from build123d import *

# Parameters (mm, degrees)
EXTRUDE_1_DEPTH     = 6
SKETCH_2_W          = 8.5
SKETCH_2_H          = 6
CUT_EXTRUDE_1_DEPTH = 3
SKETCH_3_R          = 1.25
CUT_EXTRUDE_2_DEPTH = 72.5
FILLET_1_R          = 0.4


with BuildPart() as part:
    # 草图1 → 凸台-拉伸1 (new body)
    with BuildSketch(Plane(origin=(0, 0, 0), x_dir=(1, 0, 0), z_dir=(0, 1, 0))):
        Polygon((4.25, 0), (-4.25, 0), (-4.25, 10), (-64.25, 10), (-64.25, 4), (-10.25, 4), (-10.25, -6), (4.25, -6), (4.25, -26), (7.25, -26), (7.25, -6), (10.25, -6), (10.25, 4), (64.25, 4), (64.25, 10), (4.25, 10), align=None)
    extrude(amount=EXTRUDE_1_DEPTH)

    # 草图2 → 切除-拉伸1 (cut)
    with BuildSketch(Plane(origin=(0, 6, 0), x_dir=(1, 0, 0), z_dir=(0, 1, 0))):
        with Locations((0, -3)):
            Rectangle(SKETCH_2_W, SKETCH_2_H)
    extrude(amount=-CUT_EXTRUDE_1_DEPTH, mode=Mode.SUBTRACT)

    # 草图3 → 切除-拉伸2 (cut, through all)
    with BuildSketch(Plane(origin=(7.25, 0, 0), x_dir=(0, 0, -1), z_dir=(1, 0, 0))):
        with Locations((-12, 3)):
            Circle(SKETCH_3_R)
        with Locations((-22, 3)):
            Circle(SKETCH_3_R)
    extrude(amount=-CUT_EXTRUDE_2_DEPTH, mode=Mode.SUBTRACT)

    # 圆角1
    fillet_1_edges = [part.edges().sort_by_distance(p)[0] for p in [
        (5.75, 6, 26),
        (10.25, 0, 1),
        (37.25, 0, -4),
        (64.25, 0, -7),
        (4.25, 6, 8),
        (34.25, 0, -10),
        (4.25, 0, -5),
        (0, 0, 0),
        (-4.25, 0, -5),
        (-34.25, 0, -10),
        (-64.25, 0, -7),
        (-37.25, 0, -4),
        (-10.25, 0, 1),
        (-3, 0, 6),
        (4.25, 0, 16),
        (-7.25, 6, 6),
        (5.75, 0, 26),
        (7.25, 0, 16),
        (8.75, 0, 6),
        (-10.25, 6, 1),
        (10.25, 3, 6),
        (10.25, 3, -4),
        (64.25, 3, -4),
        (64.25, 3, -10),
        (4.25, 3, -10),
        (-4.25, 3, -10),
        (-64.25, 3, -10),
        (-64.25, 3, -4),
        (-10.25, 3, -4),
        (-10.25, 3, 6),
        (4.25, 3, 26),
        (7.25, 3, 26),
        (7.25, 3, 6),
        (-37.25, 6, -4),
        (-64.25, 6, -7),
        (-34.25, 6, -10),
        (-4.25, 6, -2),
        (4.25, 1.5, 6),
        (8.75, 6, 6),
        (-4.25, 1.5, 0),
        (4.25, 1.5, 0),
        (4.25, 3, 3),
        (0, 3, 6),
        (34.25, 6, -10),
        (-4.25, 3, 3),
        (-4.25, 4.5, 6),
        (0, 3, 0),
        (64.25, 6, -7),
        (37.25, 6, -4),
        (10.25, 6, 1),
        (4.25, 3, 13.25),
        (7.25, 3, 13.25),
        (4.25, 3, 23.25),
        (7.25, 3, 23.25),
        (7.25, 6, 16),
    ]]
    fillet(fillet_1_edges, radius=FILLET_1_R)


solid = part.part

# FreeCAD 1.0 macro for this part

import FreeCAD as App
import Part
import Sketcher


def add_polygon(sketch, points):
    """Adds a closed chain of lines whose ends are joined by coincident constraints."""
    first, n = sketch.GeometryCount, len(points)
    for a, b in zip(points, points[1:] + points[:1]):
        sketch.addGeometry(Part.LineSegment(App.Vector(*a, 0), App.Vector(*b, 0)), False)
    for i in range(n):
        sketch.addConstraint(Sketcher.Constraint("Coincident", first + i, 2, first + (i + 1) % n, 1))

doc = App.newDocument("Part")
body = doc.addObject("PartDesign::Body", "Body")

sketch1 = body.newObject("Sketcher::SketchObject", "Sketch")
sketch1.AttachmentSupport = (doc.getObject("XZ_Plane"), [""])
sketch1.MapMode = "FlatFace"
add_polygon(sketch1, [(4.25, 0), (-4.25, 0), (-4.25, -10), (-64.25, -10), (-64.25, -4), (-10.25, -4), (-10.25, 6), (4.25, 6), (4.25, 26), (7.25, 26), (7.25, 6), (10.25, 6), (10.25, -4), (64.25, -4), (64.25, -10), (4.25, -10)])
sketch1.addConstraint([
    Sketcher.Constraint("Horizontal", 0),
    Sketcher.Constraint("Vertical", 1),
    Sketcher.Constraint("Horizontal", 2),
    Sketcher.Constraint("Vertical", 3),
    Sketcher.Constraint("Horizontal", 4),
    Sketcher.Constraint("Vertical", 5),
    Sketcher.Constraint("Horizontal", 6),
    Sketcher.Constraint("Vertical", 7),
    Sketcher.Constraint("Horizontal", 8),
    Sketcher.Constraint("Vertical", 9),
    Sketcher.Constraint("Horizontal", 10),
    Sketcher.Constraint("Vertical", 11),
    Sketcher.Constraint("Horizontal", 12),
    Sketcher.Constraint("Vertical", 13),
    Sketcher.Constraint("Horizontal", 14),
    Sketcher.Constraint("Vertical", 15),
    Sketcher.Constraint("Symmetric", 0, 2, 15, 2, -1, 1),
    Sketcher.Constraint("Symmetric", 5, 2, 10, 2, -2),
    Sketcher.Constraint("Symmetric", 3, 2, 12, 2, -2),
    Sketcher.Constraint("Horizontal", 2, 2, 13, 2),
    Sketcher.Constraint("Vertical", 7, 2, 14, 2),
    Sketcher.Constraint("Equal", 8, 10),
    Sketcher.Constraint("Equal", 1, 5),
    Sketcher.Constraint("DistanceX", 2, 2, 2, 1, 60.0),
    Sketcher.Constraint("DistanceX", 4, 1, 4, 2, 54.0),
    Sketcher.Constraint("DistanceY", 1, 2, 1, 1, 10.0),
    Sketcher.Constraint("DistanceY", 3, 1, 3, 2, 6.0),
    Sketcher.Constraint("DistanceY", 7, 1, 7, 2, 20.0),
    Sketcher.Constraint("DistanceX", 0, 2, 0, 1, 8.5),
])
pad1 = body.newObject("PartDesign::Pad", "Pad")
pad1.Profile = sketch1
pad1.Length = 6
pad1.Reversed = True

sketch2 = body.newObject("Sketcher::SketchObject", "Sketch001")
sketch2.AttachmentSupport = (doc.getObject("XZ_Plane"), [""])
sketch2.MapMode = "FlatFace"
sketch2.AttachmentOffset = App.Placement(App.Vector(0, 0, -6), App.Rotation())
add_polygon(sketch2, [(-4.25, 0), (-4.25, 6), (4.25, 6), (4.25, 0)])
sketch2.addConstraint([
    Sketcher.Constraint("Vertical", 0),
    Sketcher.Constraint("Horizontal", 1),
    Sketcher.Constraint("Vertical", 2),
    Sketcher.Constraint("Horizontal", 3),
    Sketcher.Constraint("Symmetric", 2, 2, 3, 2, -1, 1),
    Sketcher.Constraint("DistanceY", 0, 1, 0, 2, 6.0),
    Sketcher.Constraint("DistanceX", 1, 1, 1, 2, 8.5),
])
pocket1 = body.newObject("PartDesign::Pocket", "Pocket")
pocket1.Profile = sketch2
pocket1.Length = 3
pocket1.Reversed = True

sketch3 = body.newObject("Sketcher::SketchObject", "Sketch002")
sketch3.AttachmentSupport = (doc.getObject("YZ_Plane"), [""])
sketch3.MapMode = "FlatFace"
sketch3.AttachmentOffset = App.Placement(App.Vector(0, 0, 7.25), App.Rotation())
sketch3.addGeometry([
    Part.Circle(App.Vector(3, 12, 0), App.Vector(0, 0, 1), 1.25),
    Part.Circle(App.Vector(3, 22, 0), App.Vector(0, 0, 1), 1.25),
], False)
sketch3.addConstraint([
    Sketcher.Constraint("Equal", 0, 1),
    Sketcher.Constraint("Vertical", 0, 3, 1, 3),
    Sketcher.Constraint("Diameter", 0, 2.5),
    Sketcher.Constraint("DistanceX", -1, 1, 0, 3, 3.0),
    Sketcher.Constraint("DistanceY", -1, 1, 0, 3, 12.0),
    Sketcher.Constraint("DistanceY", -1, 1, 1, 3, 22.0),
])
pocket2 = body.newObject("PartDesign::Pocket", "Pocket001")
pocket2.Profile = sketch3
pocket2.Type = "ThroughAll"
doc.recompute()

fillet = body.newObject("PartDesign::Fillet", "Fillet")
fillet.Base = (pocket2, ["Edge1"])
fillet.UseAllEdges = True
fillet.Radius = 0.4

doc.recompute()
